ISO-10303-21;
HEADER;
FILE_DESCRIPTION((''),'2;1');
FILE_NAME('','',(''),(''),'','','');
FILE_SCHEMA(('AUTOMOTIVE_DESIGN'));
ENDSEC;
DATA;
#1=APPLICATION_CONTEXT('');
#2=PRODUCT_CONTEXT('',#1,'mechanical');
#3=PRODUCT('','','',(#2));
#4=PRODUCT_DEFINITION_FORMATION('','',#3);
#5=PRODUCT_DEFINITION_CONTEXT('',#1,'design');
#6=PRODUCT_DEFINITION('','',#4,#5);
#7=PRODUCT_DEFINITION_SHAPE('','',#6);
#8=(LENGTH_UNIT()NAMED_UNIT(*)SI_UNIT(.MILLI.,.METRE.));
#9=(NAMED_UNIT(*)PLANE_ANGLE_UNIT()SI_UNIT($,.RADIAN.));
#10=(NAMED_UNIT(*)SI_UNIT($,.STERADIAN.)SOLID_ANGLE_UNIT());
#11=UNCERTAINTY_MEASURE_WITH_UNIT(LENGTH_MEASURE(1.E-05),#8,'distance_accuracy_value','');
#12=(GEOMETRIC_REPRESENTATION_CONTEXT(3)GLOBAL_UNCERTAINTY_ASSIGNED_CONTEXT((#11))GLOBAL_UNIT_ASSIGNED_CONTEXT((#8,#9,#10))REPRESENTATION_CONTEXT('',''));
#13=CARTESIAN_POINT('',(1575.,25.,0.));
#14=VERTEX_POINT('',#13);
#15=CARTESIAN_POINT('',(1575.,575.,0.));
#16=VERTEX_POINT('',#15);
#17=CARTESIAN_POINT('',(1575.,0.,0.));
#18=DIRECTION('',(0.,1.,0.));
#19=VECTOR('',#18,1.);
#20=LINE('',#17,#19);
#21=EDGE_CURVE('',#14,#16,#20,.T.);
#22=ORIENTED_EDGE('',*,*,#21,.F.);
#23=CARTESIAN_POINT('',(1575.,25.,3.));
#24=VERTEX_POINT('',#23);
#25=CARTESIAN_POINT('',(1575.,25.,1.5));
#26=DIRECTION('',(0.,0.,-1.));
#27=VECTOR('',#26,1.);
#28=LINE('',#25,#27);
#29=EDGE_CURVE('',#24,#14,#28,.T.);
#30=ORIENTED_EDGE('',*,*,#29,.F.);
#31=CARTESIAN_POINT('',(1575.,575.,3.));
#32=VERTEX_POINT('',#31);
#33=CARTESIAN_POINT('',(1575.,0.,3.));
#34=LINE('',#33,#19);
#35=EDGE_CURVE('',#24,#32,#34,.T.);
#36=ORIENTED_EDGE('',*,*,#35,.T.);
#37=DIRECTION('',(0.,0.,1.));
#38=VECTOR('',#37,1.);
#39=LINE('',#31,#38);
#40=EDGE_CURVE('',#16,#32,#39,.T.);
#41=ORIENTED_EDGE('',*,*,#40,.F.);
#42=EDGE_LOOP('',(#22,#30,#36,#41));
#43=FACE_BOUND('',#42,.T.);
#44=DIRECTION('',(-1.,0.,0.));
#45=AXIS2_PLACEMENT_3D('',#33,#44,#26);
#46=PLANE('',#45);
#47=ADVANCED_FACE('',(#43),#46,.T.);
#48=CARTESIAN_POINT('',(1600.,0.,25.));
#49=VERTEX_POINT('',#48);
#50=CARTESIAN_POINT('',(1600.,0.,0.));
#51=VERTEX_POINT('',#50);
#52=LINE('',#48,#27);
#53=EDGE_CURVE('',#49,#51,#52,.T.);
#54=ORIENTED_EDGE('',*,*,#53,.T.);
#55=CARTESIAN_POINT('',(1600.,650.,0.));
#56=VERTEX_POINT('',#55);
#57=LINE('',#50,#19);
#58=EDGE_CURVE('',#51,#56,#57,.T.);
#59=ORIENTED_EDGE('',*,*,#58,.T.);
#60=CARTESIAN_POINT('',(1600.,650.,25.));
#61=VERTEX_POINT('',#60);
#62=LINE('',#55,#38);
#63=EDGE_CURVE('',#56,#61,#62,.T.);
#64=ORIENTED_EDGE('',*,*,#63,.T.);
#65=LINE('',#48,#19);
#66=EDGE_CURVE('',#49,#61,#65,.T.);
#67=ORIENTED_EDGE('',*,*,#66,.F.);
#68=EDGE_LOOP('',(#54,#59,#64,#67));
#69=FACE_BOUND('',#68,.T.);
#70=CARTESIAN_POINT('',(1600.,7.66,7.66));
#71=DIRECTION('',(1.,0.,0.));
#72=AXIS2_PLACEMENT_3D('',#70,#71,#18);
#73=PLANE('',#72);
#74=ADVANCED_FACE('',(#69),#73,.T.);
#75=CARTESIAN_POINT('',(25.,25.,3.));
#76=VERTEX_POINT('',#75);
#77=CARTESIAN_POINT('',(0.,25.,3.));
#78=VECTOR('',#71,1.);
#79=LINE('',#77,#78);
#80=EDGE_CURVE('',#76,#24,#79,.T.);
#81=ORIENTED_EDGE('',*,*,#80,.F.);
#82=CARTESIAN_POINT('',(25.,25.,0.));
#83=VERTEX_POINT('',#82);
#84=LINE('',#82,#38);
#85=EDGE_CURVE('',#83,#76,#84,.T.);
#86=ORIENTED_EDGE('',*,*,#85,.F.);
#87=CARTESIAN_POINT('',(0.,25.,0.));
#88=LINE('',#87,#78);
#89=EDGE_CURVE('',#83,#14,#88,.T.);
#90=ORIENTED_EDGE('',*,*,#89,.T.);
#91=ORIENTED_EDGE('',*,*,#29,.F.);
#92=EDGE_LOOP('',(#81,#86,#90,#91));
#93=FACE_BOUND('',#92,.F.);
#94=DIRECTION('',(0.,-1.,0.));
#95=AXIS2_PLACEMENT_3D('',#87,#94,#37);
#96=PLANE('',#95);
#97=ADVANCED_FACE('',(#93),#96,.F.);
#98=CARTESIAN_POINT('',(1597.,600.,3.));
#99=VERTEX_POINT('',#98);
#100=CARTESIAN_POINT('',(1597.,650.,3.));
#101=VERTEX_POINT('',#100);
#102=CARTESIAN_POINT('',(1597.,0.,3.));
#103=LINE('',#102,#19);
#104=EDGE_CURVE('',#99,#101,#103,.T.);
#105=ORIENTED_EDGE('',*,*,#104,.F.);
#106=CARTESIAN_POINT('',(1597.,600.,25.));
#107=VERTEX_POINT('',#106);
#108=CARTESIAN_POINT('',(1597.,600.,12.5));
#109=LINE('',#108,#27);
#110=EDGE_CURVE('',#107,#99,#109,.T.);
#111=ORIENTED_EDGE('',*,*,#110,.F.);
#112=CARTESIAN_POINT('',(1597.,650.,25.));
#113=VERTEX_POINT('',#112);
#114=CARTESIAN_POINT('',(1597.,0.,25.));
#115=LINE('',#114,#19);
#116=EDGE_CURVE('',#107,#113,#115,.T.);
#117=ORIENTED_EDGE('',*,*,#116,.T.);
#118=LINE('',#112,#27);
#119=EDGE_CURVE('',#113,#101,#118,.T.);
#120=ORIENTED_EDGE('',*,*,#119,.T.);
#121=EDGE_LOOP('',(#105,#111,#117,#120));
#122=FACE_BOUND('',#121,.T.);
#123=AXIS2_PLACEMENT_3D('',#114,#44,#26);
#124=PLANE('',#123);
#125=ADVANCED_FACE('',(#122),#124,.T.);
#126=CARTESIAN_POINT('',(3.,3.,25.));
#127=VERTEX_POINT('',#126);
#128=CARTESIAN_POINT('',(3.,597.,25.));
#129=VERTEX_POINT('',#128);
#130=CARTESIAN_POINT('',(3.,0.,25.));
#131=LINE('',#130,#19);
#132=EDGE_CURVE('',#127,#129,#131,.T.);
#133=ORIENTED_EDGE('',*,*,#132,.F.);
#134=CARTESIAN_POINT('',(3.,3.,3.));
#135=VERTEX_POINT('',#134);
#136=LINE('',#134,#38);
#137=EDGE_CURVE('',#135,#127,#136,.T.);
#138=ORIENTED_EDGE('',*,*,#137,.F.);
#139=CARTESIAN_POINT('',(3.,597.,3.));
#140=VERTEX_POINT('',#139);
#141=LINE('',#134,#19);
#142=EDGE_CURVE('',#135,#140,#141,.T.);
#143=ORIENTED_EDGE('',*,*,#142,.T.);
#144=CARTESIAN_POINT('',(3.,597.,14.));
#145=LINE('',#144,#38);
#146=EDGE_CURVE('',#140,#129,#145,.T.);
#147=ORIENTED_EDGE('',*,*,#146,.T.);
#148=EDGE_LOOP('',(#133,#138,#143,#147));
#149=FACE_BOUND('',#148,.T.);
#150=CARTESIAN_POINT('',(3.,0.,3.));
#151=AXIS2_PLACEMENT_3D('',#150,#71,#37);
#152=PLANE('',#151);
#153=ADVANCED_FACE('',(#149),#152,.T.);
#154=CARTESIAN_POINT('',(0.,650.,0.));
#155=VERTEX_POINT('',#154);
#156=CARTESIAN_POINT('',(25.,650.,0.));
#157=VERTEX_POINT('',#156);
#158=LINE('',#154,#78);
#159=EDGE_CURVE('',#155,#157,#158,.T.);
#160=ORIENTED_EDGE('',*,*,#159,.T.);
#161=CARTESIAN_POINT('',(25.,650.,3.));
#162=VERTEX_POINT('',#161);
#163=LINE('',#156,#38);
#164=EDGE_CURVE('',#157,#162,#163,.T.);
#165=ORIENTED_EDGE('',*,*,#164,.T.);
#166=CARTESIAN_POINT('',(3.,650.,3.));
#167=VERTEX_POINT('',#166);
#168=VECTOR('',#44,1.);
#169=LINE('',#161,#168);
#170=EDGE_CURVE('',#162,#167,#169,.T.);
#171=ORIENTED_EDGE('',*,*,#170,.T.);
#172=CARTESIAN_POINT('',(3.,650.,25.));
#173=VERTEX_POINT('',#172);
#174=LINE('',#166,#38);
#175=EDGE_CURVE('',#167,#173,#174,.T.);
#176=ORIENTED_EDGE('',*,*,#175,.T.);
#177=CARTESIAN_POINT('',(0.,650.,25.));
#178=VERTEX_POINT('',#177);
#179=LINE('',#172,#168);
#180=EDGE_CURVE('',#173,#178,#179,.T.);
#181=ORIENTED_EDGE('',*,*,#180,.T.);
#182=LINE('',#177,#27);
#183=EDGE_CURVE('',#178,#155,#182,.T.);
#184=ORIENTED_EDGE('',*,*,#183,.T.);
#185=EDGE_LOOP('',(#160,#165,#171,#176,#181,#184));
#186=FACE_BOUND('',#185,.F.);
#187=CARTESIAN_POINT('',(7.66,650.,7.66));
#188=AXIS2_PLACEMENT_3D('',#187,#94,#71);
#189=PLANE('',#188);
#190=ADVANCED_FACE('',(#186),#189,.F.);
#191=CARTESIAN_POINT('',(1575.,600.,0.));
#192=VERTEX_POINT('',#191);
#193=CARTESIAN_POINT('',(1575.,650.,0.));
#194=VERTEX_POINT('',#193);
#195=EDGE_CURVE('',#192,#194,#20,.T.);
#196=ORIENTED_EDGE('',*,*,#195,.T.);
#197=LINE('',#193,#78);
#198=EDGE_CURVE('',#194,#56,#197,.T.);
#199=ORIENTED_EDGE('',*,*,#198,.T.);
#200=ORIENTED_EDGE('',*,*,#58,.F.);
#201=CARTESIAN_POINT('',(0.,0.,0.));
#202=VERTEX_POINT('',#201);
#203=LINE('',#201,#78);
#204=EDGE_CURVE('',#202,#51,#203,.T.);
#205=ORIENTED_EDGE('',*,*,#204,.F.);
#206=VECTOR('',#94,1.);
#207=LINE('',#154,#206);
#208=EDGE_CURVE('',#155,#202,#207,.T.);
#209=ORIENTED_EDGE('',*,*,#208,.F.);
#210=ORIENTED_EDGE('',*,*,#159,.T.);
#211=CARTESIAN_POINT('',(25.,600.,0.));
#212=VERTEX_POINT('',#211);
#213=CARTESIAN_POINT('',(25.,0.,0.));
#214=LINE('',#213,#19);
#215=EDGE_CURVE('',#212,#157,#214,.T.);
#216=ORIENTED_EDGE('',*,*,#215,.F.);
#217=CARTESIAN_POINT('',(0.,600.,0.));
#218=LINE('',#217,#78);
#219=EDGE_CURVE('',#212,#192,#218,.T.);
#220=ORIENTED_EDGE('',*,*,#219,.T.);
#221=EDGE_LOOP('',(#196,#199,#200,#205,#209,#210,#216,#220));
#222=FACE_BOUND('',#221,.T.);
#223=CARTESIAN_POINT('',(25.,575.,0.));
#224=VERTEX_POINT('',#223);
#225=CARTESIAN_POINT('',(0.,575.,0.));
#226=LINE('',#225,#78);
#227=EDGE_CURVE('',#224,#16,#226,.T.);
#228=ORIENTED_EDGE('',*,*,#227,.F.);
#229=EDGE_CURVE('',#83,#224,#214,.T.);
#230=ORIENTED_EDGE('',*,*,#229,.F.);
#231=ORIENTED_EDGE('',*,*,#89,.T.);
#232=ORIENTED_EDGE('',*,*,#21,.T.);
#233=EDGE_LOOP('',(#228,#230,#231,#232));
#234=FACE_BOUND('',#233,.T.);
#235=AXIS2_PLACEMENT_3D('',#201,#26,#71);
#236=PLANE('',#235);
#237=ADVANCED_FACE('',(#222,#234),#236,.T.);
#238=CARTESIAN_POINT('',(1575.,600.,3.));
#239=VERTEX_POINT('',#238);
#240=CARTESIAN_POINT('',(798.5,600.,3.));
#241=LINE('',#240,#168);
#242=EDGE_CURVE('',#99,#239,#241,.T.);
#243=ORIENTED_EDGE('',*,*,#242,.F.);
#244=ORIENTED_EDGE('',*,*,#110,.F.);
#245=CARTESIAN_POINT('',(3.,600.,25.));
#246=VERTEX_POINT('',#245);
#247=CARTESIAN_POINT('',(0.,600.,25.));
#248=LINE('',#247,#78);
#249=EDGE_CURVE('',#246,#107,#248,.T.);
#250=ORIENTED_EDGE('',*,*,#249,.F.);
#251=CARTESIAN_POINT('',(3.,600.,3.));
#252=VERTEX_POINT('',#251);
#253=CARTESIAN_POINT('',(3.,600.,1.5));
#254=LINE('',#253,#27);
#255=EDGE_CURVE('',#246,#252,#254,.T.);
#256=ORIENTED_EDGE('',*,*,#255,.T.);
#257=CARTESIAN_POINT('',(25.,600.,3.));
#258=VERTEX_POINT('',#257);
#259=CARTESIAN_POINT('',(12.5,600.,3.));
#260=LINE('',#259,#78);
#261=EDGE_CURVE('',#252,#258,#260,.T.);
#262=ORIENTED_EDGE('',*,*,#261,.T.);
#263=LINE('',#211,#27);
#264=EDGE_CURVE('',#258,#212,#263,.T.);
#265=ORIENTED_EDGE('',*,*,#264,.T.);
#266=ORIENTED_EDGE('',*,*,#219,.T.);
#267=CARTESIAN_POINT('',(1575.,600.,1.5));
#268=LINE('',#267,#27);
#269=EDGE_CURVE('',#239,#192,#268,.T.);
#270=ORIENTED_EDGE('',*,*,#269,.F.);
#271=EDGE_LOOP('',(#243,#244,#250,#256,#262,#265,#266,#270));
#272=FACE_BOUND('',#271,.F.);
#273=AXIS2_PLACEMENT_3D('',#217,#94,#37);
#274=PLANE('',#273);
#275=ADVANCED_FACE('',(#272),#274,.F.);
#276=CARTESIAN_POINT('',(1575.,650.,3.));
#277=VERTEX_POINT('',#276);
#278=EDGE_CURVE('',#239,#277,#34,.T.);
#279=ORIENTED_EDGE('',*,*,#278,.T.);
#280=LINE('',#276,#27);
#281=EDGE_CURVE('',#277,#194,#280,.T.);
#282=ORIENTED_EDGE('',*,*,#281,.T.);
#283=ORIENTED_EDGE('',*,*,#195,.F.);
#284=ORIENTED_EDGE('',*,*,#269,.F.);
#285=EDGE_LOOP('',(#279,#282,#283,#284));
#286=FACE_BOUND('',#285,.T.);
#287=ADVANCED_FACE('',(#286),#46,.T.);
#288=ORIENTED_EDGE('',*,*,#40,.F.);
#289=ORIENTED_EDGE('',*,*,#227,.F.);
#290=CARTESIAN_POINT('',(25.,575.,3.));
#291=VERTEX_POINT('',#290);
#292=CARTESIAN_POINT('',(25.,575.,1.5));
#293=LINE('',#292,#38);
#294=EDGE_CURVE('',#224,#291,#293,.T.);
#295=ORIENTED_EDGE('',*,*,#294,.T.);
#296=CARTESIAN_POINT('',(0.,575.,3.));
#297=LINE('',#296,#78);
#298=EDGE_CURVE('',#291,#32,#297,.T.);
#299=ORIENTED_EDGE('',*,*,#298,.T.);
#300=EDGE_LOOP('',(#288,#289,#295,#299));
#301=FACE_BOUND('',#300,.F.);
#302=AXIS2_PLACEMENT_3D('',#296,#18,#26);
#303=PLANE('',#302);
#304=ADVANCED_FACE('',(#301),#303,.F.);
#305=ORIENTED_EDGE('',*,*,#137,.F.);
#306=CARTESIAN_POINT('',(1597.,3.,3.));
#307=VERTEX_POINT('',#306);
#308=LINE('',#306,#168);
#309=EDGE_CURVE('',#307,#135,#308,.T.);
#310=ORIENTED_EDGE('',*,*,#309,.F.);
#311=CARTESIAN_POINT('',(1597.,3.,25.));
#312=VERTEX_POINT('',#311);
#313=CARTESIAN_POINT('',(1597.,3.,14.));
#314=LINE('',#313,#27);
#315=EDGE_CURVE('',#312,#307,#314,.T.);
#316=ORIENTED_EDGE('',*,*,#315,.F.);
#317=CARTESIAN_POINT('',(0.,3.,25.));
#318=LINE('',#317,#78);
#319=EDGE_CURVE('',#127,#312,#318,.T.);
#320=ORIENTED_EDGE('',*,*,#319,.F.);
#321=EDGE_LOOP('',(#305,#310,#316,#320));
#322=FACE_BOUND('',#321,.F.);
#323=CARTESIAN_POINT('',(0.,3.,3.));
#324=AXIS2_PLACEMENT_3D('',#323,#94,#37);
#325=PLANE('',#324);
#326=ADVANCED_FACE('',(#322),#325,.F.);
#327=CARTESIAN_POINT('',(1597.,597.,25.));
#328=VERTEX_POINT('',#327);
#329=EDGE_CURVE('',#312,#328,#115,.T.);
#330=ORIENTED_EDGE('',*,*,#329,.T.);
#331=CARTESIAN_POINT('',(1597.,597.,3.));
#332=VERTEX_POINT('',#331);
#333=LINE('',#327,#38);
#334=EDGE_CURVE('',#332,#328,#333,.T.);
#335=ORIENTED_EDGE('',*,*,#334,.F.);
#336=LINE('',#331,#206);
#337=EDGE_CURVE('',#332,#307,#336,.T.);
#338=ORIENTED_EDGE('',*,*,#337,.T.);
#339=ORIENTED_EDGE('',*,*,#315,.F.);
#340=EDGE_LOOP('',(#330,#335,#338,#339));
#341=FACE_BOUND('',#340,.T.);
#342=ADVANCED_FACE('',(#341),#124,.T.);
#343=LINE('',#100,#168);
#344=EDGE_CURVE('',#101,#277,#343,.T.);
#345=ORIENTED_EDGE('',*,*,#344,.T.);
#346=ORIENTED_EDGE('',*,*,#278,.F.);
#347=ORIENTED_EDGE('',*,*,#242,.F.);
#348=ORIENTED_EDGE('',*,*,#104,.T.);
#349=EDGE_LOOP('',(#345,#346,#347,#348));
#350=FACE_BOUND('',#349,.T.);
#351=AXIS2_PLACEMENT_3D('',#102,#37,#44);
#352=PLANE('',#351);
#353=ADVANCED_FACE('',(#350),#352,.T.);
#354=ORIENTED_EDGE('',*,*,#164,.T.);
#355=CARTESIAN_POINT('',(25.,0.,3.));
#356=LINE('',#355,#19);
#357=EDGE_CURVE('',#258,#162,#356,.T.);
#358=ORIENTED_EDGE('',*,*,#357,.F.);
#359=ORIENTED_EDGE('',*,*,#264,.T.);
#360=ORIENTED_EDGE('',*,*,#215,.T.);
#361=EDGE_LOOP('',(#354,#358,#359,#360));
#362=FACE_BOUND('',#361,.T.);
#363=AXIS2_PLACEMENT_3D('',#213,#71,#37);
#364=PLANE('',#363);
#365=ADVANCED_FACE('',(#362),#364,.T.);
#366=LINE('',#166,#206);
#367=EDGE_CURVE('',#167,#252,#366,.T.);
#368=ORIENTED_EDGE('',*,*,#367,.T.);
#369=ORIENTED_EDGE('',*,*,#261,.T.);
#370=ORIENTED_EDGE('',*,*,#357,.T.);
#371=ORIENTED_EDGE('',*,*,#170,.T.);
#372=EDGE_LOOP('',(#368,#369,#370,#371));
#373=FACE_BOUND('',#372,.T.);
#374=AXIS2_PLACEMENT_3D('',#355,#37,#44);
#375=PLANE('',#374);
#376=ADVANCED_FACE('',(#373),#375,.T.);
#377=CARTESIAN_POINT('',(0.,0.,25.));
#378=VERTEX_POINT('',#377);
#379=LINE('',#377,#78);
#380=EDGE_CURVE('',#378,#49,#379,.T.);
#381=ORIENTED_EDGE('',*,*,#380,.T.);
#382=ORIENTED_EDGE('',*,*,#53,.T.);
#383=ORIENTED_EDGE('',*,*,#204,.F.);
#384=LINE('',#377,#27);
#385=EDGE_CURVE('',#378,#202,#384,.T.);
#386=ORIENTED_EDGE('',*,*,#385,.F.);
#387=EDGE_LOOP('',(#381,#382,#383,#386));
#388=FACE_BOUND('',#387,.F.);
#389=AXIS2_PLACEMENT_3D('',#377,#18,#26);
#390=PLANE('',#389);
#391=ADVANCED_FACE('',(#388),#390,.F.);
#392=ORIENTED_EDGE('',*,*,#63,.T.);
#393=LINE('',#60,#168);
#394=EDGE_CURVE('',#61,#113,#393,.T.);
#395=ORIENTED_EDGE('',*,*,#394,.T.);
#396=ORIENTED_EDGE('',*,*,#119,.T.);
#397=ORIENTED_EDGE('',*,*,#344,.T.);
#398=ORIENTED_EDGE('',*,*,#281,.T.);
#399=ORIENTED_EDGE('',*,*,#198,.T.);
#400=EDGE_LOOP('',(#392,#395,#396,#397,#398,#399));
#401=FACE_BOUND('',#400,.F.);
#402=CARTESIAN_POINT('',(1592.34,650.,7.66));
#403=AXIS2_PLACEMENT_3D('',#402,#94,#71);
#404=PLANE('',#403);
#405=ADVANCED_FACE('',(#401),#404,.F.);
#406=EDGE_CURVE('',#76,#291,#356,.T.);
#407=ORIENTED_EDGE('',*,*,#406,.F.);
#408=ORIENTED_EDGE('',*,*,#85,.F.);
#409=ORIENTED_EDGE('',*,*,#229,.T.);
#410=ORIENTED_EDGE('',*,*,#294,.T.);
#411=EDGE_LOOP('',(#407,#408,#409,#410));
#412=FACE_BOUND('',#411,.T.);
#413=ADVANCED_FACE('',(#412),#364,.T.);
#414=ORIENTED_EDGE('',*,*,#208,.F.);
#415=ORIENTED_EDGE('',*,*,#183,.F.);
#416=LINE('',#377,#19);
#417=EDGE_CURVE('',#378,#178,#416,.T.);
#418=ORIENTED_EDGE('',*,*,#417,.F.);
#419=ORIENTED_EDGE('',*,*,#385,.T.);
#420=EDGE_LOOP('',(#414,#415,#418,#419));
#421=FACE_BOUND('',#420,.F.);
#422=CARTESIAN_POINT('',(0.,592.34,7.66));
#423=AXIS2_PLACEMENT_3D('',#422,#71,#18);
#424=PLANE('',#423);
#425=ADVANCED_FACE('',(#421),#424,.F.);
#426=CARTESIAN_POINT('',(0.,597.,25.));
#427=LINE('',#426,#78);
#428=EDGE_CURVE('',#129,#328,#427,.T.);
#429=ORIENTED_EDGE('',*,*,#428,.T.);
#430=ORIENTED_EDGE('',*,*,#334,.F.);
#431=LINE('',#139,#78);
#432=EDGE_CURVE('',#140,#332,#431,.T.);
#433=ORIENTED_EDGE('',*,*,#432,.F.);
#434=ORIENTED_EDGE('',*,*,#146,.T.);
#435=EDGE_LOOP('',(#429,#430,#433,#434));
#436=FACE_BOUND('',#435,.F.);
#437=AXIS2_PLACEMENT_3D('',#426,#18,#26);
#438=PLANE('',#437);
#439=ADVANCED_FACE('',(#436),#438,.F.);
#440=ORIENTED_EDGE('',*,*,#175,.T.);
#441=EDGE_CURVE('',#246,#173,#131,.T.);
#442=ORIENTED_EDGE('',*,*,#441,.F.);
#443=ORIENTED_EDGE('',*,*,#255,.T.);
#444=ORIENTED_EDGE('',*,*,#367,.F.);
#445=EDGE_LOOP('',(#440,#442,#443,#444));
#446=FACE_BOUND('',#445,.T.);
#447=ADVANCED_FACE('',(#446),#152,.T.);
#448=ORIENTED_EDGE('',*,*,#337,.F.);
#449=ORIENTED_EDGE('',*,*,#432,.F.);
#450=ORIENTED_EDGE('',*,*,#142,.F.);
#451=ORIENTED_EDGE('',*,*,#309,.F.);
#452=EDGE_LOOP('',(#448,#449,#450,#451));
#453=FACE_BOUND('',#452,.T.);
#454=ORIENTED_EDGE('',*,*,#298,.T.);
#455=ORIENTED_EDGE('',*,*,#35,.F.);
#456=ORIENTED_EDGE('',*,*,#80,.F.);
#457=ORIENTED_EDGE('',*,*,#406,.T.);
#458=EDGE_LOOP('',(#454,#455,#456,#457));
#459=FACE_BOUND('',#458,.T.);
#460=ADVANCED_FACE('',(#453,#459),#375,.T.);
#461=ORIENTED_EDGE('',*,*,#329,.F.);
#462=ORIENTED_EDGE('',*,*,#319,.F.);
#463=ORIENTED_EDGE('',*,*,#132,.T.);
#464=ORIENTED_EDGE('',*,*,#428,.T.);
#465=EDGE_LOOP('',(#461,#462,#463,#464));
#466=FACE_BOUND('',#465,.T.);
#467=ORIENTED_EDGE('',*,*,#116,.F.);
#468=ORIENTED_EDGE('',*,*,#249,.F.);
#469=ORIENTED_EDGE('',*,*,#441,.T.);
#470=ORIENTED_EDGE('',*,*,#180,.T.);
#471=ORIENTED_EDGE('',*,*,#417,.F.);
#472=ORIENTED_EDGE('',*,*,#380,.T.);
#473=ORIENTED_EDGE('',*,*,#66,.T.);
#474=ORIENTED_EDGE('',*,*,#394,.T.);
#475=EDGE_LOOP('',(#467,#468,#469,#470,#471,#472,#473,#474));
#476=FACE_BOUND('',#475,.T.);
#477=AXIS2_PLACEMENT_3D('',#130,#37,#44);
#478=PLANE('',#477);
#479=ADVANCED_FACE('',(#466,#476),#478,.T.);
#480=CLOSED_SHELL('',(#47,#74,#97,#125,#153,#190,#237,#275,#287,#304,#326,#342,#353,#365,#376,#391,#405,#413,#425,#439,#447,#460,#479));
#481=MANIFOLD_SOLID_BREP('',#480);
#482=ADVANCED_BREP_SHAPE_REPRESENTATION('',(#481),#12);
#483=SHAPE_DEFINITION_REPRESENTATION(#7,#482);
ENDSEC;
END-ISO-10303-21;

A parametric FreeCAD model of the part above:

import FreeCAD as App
import Part
import Sketcher
from FreeCAD import Vector
Q = App.Units.Quantity


def add_polygon(sketch, points):
    """Adds a closed chain of lines whose ends are joined by coincident constraints."""
    first, n = sketch.GeometryCount, len(points)
    for a, b in zip(points, points[1:] + points[:1]):
        sketch.addGeometry(Part.LineSegment(App.Vector(*a, 0), App.Vector(*b, 0)), False)
    for i in range(n):
        sketch.addConstraint(Sketcher.Constraint("Coincident", first + i, 2, first + (i + 1) % n, 1))

doc = App.newDocument("Part")
body = doc.addObject("PartDesign::Body", "Body")

sketch1 = body.newObject("Sketcher::SketchObject", "Sketch")
sketch1.AttachmentSupport = (doc.getObject("YZ_Plane"), [""])
sketch1.MapMode = "FlatFace"
add_polygon(sketch1, [(0, 25), (0, 0), (25, 0), (25, 3), (3, 3), (3, 25)])
sketch1.addConstraint([
    Sketcher.Constraint("Vertical", 0),
    Sketcher.Constraint("Horizontal", 1),
    Sketcher.Constraint("Vertical", 2),
    Sketcher.Constraint("Horizontal", 3),
    Sketcher.Constraint("Vertical", 4),
    Sketcher.Constraint("Horizontal", 5),
    Sketcher.Constraint("Coincident", 0, 2, -1, 1),
    Sketcher.Constraint("Equal", 1, 0),
    Sketcher.Constraint("Equal", 5, 2),
    Sketcher.Constraint("DistanceX", 1, 1, 1, 2, Q("25 mm")),
    Sketcher.Constraint("DistanceX", 3, 2, 3, 1, Q("22 mm")),
])
pad1 = body.newObject("PartDesign::Pad", "Pad")
pad1.Profile = sketch1
pad1.Length = 1600

sketch2 = body.newObject("Sketcher::SketchObject", "Sketch001")
sketch2.AttachmentSupport = (doc.getObject("XZ_Plane"), [""])
sketch2.MapMode = "FlatFace"
add_polygon(sketch2, [(0, 25), (0, 0), (25, 0), (25, 3), (3, 3), (3, 25)])
sketch2.addConstraint([
    Sketcher.Constraint("Vertical", 0),
    Sketcher.Constraint("Horizontal", 1),
    Sketcher.Constraint("Vertical", 2),
    Sketcher.Constraint("Horizontal", 3),
    Sketcher.Constraint("Vertical", 4),
    Sketcher.Constraint("Horizontal", 5),
    Sketcher.Constraint("Coincident", 0, 2, -1, 1),
    Sketcher.Constraint("Equal", 1, 0),
    Sketcher.Constraint("Equal", 5, 2),
    Sketcher.Constraint("DistanceX", 1, 1, 1, 2, Q("25 mm")),
    Sketcher.Constraint("DistanceX", 3, 2, 3, 1, Q("22 mm")),
])
pad2 = body.newObject("PartDesign::Pad", "Pad001")
pad2.Profile = sketch2
pad2.Length = 650
pad2.Reversed = True

sketch3 = body.newObject("Sketcher::SketchObject", "Sketch002")
sketch3.AttachmentSupport = (doc.getObject("YZ_Plane"), [""])
sketch3.MapMode = "FlatFace"
add_polygon(sketch3, [(600, 0), (600, 25), (597, 25), (597, 3), (575, 3), (575, 0)])
sketch3.addConstraint([
    Sketcher.Constraint("Vertical", 0),
    Sketcher.Constraint("Horizontal", 1),
    Sketcher.Constraint("Vertical", 2),
    Sketcher.Constraint("Horizontal", 3),
    Sketcher.Constraint("Vertical", 4),
    Sketcher.Constraint("Horizontal", 5),
    Sketcher.Constraint("PointOnObject", 4, 2, -1),
    Sketcher.Constraint("Equal", 5, 0),
    Sketcher.Constraint("Equal", 3, 2),
    Sketcher.Constraint("DistanceX", 1, 2, 1, 1, Q("3 mm")),
    Sketcher.Constraint("DistanceX", 3, 2, 3, 1, Q("22 mm")),
    Sketcher.Constraint("DistanceX", -1, 1, 0, 2, Q("600 mm")),
])
pad3 = body.newObject("PartDesign::Pad", "Pad002")
pad3.Profile = sketch3
pad3.Length = 1600

sketch4 = body.newObject("Sketcher::SketchObject", "Sketch003")
sketch4.AttachmentSupport = (doc.getObject("XZ_Plane"), [""])
sketch4.MapMode = "FlatFace"
add_polygon(sketch4, [(1600, 0), (1600, 25), (1597, 25), (1597, 3), (1575, 3), (1575, 0)])
sketch4.addConstraint([
    Sketcher.Constraint("Vertical", 0),
    Sketcher.Constraint("Horizontal", 1),
    Sketcher.Constraint("Vertical", 2),
    Sketcher.Constraint("Horizontal", 3),
    Sketcher.Constraint("Vertical", 4),
    Sketcher.Constraint("Horizontal", 5),
    Sketcher.Constraint("PointOnObject", 4, 2, -1),
    Sketcher.Constraint("Equal", 5, 0),
    Sketcher.Constraint("Equal", 3, 2),
    Sketcher.Constraint("DistanceX", 1, 2, 1, 1, Q("3 mm")),
    Sketcher.Constraint("DistanceX", 3, 2, 3, 1, Q("22 mm")),
    Sketcher.Constraint("DistanceX", -1, 1, 0, 2, Q("1600 mm")),
])
pad4 = body.newObject("PartDesign::Pad", "Pad003")
pad4.Profile = sketch4
pad4.Length = 650
pad4.Reversed = True

doc.recompute()
